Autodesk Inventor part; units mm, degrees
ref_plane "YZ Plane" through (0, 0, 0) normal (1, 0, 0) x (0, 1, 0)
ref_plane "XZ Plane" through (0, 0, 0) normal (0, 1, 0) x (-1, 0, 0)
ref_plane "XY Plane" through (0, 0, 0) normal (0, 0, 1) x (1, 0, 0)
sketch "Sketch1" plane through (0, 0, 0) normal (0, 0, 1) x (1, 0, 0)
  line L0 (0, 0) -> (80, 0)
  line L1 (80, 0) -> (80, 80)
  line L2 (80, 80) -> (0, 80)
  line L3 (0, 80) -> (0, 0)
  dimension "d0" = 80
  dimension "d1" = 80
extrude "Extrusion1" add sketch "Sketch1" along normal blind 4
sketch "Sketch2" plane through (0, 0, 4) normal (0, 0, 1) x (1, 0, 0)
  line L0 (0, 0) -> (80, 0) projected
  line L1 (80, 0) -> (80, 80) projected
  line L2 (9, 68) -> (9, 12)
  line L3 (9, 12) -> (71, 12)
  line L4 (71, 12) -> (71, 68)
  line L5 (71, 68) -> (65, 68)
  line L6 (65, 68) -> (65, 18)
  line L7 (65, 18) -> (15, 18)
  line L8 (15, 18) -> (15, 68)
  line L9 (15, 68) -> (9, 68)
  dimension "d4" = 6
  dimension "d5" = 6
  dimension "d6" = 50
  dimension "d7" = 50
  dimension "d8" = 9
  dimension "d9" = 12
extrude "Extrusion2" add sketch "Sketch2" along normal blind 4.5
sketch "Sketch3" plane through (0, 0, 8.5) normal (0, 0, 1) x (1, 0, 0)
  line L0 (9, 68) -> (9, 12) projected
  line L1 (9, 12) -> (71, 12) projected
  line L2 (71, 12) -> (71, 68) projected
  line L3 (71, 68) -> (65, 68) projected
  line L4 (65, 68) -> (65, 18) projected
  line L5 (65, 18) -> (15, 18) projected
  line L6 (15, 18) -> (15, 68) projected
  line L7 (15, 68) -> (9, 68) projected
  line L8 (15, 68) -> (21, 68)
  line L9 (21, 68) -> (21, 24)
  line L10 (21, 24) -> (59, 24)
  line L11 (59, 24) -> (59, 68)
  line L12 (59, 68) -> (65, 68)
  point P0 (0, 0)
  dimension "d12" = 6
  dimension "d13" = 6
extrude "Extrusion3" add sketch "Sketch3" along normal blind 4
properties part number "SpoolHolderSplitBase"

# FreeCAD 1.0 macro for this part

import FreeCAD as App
import Part
import Sketcher

V = App.Vector
Q = App.Units.Quantity

doc = App.newDocument("Part")
params = doc.addObject("Spreadsheet::Sheet", "Params")
for row, (alias, value) in enumerate([
    ("sketch1_width", "80 mm"),
    ("pad1_length", "4 mm"),
    ("sketch2_width", "6 mm"),
    ("sketch2_width2", "50 mm"),
    ("pad2_length", "4.5 mm"),
    ("sketch3_width", "62 mm"),
    ("sketch3_width2", "12 mm"),
    ("sketch3_height", "56 mm"),
    ("sketch3_height2", "44 mm"),
    ("pad3_length", "4 mm"),
], start=1):
    params.set(f"A{row}", alias)
    params.set(f"B{row}", "=" + value)
    params.setAlias(f"B{row}", alias)

body = doc.addObject("PartDesign::Body", "Body")

sketch1 = doc.addObject("Sketcher::SketchObject", "Sketch")
body.addObject(sketch1)
sketch1.AttachmentSupport = (doc.XY_Plane, [""])
sketch1.MapMode = "FlatFace"
sketch1.addGeometry([
    Part.LineSegment(V(0, 80, 0), V(0, 0, 0)),
    Part.LineSegment(V(0, 0, 0), V(80, 0, 0)),
    Part.LineSegment(V(80, 0, 0), V(80, 80, 0)),
    Part.LineSegment(V(80, 80, 0), V(0, 80, 0)),
], False)
sketch1.addConstraint([
    Sketcher.Constraint("Coincident", 0, 2, 1, 1),
    Sketcher.Constraint("Coincident", 1, 2, 2, 1),
    Sketcher.Constraint("Coincident", 2, 2, 3, 1),
    Sketcher.Constraint("Coincident", 3, 2, 0, 1),
    Sketcher.Constraint("Vertical", 0),
    Sketcher.Constraint("Horizontal", 1),
    Sketcher.Constraint("Vertical", 2),
    Sketcher.Constraint("Horizontal", 3),
    Sketcher.Constraint("Coincident", 0, 2, -1, 1),
    Sketcher.Constraint("Equal", 3, 0),
    Sketcher.Constraint("DistanceX", 1, 1, 1, 2, Q("80 mm")),
])
sketch1.setExpression("Constraints[10]", "Params.sketch1_width")
pad1 = doc.addObject("PartDesign::Pad", "Pad")
body.addObject(pad1)
pad1.Profile = sketch1
pad1.setExpression("Length", "Params.pad1_length")

sketch2 = doc.addObject("Sketcher::SketchObject", "Sketch001")
body.addObject(sketch2)
sketch2.AttachmentSupport = (doc.XY_Plane, [""])
sketch2.MapMode = "FlatFace"
sketch2.AttachmentOffset = App.Placement(V(0, 0, 4), App.Rotation())
sketch2.addGeometry([
    Part.LineSegment(V(15, 68, 0), V(9, 68, 0)),
    Part.LineSegment(V(9, 68, 0), V(9, 12, 0)),
    Part.LineSegment(V(9, 12, 0), V(71, 12, 0)),
    Part.LineSegment(V(71, 12, 0), V(71, 68, 0)),
    Part.LineSegment(V(71, 68, 0), V(65, 68, 0)),
    Part.LineSegment(V(65, 68, 0), V(65, 18, 0)),
    Part.LineSegment(V(65, 18, 0), V(15, 18, 0)),
    Part.LineSegment(V(15, 18, 0), V(15, 68, 0)),
], False)
sketch2.addConstraint([
    Sketcher.Constraint("Coincident", 0, 2, 1, 1),
    Sketcher.Constraint("Coincident", 1, 2, 2, 1),
    Sketcher.Constraint("Coincident", 2, 2, 3, 1),
    Sketcher.Constraint("Coincident", 3, 2, 4, 1),
    Sketcher.Constraint("Coincident", 4, 2, 5, 1),
    Sketcher.Constraint("Coincident", 5, 2, 6, 1),
    Sketcher.Constraint("Coincident", 6, 2, 7, 1),
    Sketcher.Constraint("Coincident", 7, 2, 0, 1),
    Sketcher.Constraint("Horizontal", 0),
    Sketcher.Constraint("Vertical", 1),
    Sketcher.Constraint("Horizontal", 2),
    Sketcher.Constraint("Vertical", 3),
    Sketcher.Constraint("Horizontal", 4),
    Sketcher.Constraint("Vertical", 5),
    Sketcher.Constraint("Horizontal", 6),
    Sketcher.Constraint("Vertical", 7),
    Sketcher.Constraint("Horizontal", 0, 2, 3, 2),
    Sketcher.Constraint("Equal", 0, 4),
    Sketcher.Constraint("Equal", 6, 5),
    Sketcher.Constraint("DistanceX", 0, 2, 0, 1, Q("6 mm")),
    Sketcher.Constraint("DistanceX", 6, 2, 6, 1, Q("50 mm")),
    Sketcher.Constraint("DistanceX", -1, 1, 0, 2, Q("9 mm")),
    Sketcher.Constraint("DistanceY", -1, 1, 1, 2, Q("12 mm")),
    Sketcher.Constraint("DistanceY", 2, 2, 5, 2, Q("6 mm")),
])
sketch2.setExpression("Constraints[19]", "Params.sketch2_width")
sketch2.setExpression("Constraints[20]", "Params.sketch2_width2")
pad2 = doc.addObject("PartDesign::Pad", "Pad001")
body.addObject(pad2)
pad2.Profile = sketch2
pad2.setExpression("Length", "Params.pad2_length")

sketch3 = doc.addObject("Sketcher::SketchObject", "Sketch002")
body.addObject(sketch3)
sketch3.AttachmentSupport = (doc.XY_Plane, [""])
sketch3.MapMode = "FlatFace"
sketch3.AttachmentOffset = App.Placement(V(0, 0, 8.5), App.Rotation())
sketch3.addGeometry([
    Part.LineSegment(V(9, 68, 0), V(9, 12, 0)),
    Part.LineSegment(V(9, 12, 0), V(71, 12, 0)),
    Part.LineSegment(V(71, 12, 0), V(71, 68, 0)),
    Part.LineSegment(V(71, 68, 0), V(59, 68, 0)),
    Part.LineSegment(V(59, 68, 0), V(59, 24, 0)),
    Part.LineSegment(V(59, 24, 0), V(21, 24, 0)),
    Part.LineSegment(V(21, 24, 0), V(21, 68, 0)),
    Part.LineSegment(V(21, 68, 0), V(9, 68, 0)),
], False)
sketch3.addConstraint([
    Sketcher.Constraint("Coincident", 0, 2, 1, 1),
    Sketcher.Constraint("Coincident", 1, 2, 2, 1),
    Sketcher.Constraint("Coincident", 2, 2, 3, 1),
    Sketcher.Constraint("Coincident", 3, 2, 4, 1),
    Sketcher.Constraint("Coincident", 4, 2, 5, 1),
    Sketcher.Constraint("Coincident", 5, 2, 6, 1),
    Sketcher.Constraint("Coincident", 6, 2, 7, 1),
    Sketcher.Constraint("Coincident", 7, 2, 0, 1),
    Sketcher.Constraint("Vertical", 0),
    Sketcher.Constraint("Horizontal", 1),
    Sketcher.Constraint("Vertical", 2),
    Sketcher.Constraint("Horizontal", 3),
    Sketcher.Constraint("Vertical", 4),
    Sketcher.Constraint("Horizontal", 5),
    Sketcher.Constraint("Vertical", 6),
    Sketcher.Constraint("Horizontal", 7),
    Sketcher.Constraint("Horizontal", 3, 2, 6, 2),
    Sketcher.Constraint("Equal", 3, 7),
    Sketcher.Constraint("DistanceX", 1, 1, 1, 2, Q("62 mm")),
    Sketcher.Constraint("DistanceX", 3, 2, 3, 1, Q("12 mm")),
    Sketcher.Constraint("DistanceY", 0, 2, 0, 1, Q("56 mm")),
    Sketcher.Constraint("DistanceY", 4, 2, 4, 1, Q("44 mm")),
    Sketcher.Constraint("DistanceX", -1, 1, 0, 2, Q("9 mm")),
    Sketcher.Constraint("DistanceY", -1, 1, 0, 2, Q("12 mm")),
])
sketch3.setExpression("Constraints[18]", "Params.sketch3_width")
sketch3.setExpression("Constraints[19]", "Params.sketch3_width2")
sketch3.setExpression("Constraints[20]", "Params.sketch3_height")
sketch3.setExpression("Constraints[21]", "Params.sketch3_height2")
pad3 = doc.addObject("PartDesign::Pad", "Pad002")
body.addObject(pad3)
pad3.Profile = sketch3
pad3.setExpression("Length", "Params.pad3_length")

doc.recompute()
